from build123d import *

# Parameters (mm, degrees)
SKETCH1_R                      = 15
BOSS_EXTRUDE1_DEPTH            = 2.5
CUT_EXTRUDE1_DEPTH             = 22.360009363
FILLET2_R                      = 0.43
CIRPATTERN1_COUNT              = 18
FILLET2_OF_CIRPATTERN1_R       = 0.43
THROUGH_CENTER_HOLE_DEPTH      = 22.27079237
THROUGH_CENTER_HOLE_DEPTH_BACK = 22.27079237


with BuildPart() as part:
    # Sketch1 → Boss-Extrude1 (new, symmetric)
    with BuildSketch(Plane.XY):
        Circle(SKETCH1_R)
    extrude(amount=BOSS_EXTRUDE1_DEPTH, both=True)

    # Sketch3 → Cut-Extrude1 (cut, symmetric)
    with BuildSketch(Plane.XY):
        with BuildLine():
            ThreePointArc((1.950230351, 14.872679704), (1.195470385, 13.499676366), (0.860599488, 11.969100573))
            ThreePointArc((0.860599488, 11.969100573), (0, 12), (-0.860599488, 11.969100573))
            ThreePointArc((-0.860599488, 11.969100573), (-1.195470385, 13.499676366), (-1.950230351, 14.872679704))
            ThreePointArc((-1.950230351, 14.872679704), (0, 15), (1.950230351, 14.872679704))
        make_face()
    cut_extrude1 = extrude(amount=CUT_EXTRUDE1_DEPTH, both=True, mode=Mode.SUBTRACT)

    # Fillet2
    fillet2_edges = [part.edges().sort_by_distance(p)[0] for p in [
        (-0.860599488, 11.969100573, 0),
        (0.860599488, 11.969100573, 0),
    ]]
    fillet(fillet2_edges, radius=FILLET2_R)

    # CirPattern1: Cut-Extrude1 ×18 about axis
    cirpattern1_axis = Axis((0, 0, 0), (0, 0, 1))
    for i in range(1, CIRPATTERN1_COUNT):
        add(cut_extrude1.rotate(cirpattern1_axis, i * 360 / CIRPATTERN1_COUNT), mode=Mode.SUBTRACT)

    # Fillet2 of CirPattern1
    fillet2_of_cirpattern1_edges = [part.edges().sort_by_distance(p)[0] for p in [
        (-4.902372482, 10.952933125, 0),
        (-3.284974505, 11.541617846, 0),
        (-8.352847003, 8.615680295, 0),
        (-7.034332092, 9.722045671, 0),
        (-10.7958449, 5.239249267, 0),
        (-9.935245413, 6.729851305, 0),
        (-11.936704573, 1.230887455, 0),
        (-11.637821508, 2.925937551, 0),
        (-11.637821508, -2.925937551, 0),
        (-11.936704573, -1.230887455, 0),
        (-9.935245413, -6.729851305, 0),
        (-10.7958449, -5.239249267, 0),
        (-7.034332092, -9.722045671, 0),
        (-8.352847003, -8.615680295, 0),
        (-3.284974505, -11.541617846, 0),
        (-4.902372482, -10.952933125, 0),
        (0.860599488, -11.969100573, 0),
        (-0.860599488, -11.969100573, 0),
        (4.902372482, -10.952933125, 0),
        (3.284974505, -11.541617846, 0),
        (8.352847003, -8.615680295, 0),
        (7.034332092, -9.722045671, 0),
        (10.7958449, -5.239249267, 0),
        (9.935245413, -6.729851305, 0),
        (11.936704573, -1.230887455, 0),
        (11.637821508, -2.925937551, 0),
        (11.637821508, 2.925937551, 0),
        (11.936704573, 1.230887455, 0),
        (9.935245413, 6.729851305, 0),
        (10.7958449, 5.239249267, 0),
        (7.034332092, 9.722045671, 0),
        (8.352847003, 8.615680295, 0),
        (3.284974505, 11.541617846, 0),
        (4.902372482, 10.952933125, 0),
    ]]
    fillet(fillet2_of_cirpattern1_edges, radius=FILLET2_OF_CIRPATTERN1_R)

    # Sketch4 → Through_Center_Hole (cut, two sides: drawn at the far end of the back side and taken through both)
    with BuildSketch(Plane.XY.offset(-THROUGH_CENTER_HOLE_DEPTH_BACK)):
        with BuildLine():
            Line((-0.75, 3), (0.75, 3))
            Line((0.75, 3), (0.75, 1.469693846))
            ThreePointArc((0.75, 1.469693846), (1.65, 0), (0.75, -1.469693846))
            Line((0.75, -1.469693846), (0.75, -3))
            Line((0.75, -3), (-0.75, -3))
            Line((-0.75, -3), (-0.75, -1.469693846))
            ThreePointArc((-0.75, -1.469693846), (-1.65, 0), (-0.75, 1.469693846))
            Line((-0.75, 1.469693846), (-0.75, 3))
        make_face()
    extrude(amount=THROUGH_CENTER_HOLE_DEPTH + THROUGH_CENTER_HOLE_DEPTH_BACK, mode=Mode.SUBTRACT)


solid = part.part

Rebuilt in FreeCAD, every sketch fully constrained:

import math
import FreeCAD as App
import Part
import Sketcher

V = App.Vector


def edges_at(feature, points):
    """Names of the edges that pass closest to the given points."""
    edges = feature.Shape.Edges
    near = lambda p: min(range(len(edges)), key=lambda i: edges[i].distToShape(Part.Vertex(*p))[0])
    return sorted({f"Edge{near(p) + 1}" for p in points})

doc = App.newDocument("Part")
body = doc.addObject("PartDesign::Body", "Body")

# Sketch on XY plane
sketch1 = body.newObject("Sketcher::SketchObject", "Sketch")
sketch1.AttachmentSupport = (doc.getObject("XY_Plane"), [""])
sketch1.MapMode = "FlatFace"
sketch1.addGeometry(Part.Circle(V(0, 0, 0), V(0, 0, 1), 15), False)
sketch1.addConstraint([
    Sketcher.Constraint("Coincident", 0, 3, -1, 1),
    Sketcher.Constraint("Diameter", 0, 30.0),
])
pad1 = body.newObject("PartDesign::Pad", "Pad")
pad1.Profile = sketch1
pad1.Length = 5
pad1.Midplane = True

# Sketch on XY plane
sketch2 = body.newObject("Sketcher::SketchObject", "Sketch001")
sketch2.AttachmentSupport = (doc.getObject("XY_Plane"), [""])
sketch2.MapMode = "FlatFace"
sketch2.addGeometry([
    Part.ArcOfCircle(Part.Circle(V(6.320085, 11.576554, 0), V(0, 0, 1), 5.47358), math.radians(142.973214), math.radians(175.88741)),
    Part.ArcOfCircle(Part.Circle(V(0, 0, 0), V(0, 0, 1), 15), math.radians(82.52952), math.radians(97.47048)),
    Part.ArcOfCircle(Part.Circle(V(-6.320085, 11.576554, 0), V(0, 0, 1), 5.47358), math.radians(4.11259), math.radians(37.026786)),
    Part.ArcOfCircle(Part.Circle(V(0, 0, 0), V(0, 0, 1), 12), math.radians(85.88741), math.radians(94.11259)),
], False)
sketch2.addConstraint([
    Sketcher.Constraint("Coincident", 0, 1, 1, 1),
    Sketcher.Constraint("Coincident", 1, 2, 2, 2),
    Sketcher.Constraint("Coincident", 2, 1, 3, 2),
    Sketcher.Constraint("Coincident", 3, 1, 0, 2),
    Sketcher.Constraint("Coincident", 1, 3, -1, 1),
    Sketcher.Constraint("Coincident", 3, 3, -1, 1),
    Sketcher.Constraint("Equal", 0, 2),
    Sketcher.Constraint("Symmetric", 0, 3, 2, 3, -2),
    Sketcher.Constraint("Radius", 1, 15.0),
    Sketcher.Constraint("Radius", 3, 12.0),
    Sketcher.Constraint("Radius", 0, 5.47358),
    Sketcher.Constraint("DistanceX", 2, 1, -1, 1, 0.860599),
    Sketcher.Constraint("DistanceX", -1, 1, 0, 1, 1.95023),
])
pocket1 = body.newObject("PartDesign::Pocket", "Pocket")
pocket1.Profile = sketch2
pocket1.Length = 44.720019
pocket1.Midplane = True
doc.recompute()

fillet = body.newObject("PartDesign::Fillet", "Fillet")
fillet.Base = (pocket1, edges_at(pocket1, [(-0.861, 11.969, 0), (0.861, 11.969, 0)]))
fillet.Radius = 0.43
doc.recompute()

polarpattern = body.newObject("PartDesign::PolarPattern", "PolarPattern")
polarpattern.Originals = [pocket1]
polarpattern.Axis = (doc.getObject("Z_Axis"), [""])
polarpattern.Angle = 360
polarpattern.Occurrences = 18
body.Tip = polarpattern
doc.recompute()

fillet2 = body.newObject("PartDesign::Fillet", "Fillet001")
fillet2.Base = (polarpattern, edges_at(polarpattern, [
    (-4.902, 10.953, 0),
    (-3.285, 11.542, 0),
    (-8.353, 8.616, 0),
    (-7.034, 9.722, 0),
    (-10.796, 5.239, 0),
    (-9.935, 6.73, 0),
    (-11.937, 1.231, 0),
    (-11.638, 2.926, 0),
    (-11.638, -2.926, 0),
    (-11.937, -1.231, 0),
    (-9.935, -6.73, 0),
    (-10.796, -5.239, 0),
    (-7.034, -9.722, 0),
    (-8.353, -8.616, 0),
    (-3.285, -11.542, 0),
    (-4.902, -10.953, 0),
    (0.861, -11.969, 0),
    (-0.861, -11.969, 0),
    (4.902, -10.953, 0),
    (3.285, -11.542, 0),
    (8.353, -8.616, 0),
    (7.034, -9.722, 0),
    (10.796, -5.239, 0),
    (9.935, -6.73, 0),
    (11.937, -1.231, 0),
    (11.638, -2.926, 0),
    (11.638, 2.926, 0),
    (11.937, 1.231, 0),
    (9.935, 6.73, 0),
    (10.796, 5.239, 0),
    (7.034, 9.722, 0),
    (8.353, 8.616, 0),
    (3.285, 11.542, 0),
    (4.902, 10.953, 0),
]))
fillet2.Radius = 0.43

# Sketch on XY plane
sketch3 = body.newObject("Sketcher::SketchObject", "Sketch002")
sketch3.AttachmentSupport = (doc.getObject("XY_Plane"), [""])
sketch3.MapMode = "FlatFace"
sketch3.addGeometry([
    Part.LineSegment(V(0.75, 3, 0), V(-0.75, 3, 0)),  # 0
    Part.LineSegment(V(-0.75, 3, 0), V(-0.75, 1.469694, 0)),  # 1
    Part.ArcOfCircle(Part.Circle(V(0, 0, 0), V(0, 0, 1), 1.65), math.radians(117.035692), math.radians(242.964308)),  # 2
    Part.LineSegment(V(-0.75, -1.469694, 0), V(-0.75, -3, 0)),  # 3
    Part.LineSegment(V(-0.75, -3, 0), V(0.75, -3, 0)),  # 4
    Part.LineSegment(V(0.75, -3, 0), V(0.75, -1.469694, 0)),  # 5
    Part.ArcOfCircle(Part.Circle(V(0, 0, 0), V(0, 0, 1), 1.65), math.radians(-62.964308), math.radians(62.964308)),  # 6
    Part.LineSegment(V(0.75, 1.469694, 0), V(0.75, 3, 0)),  # 7
], False)
sketch3.addConstraint([
    Sketcher.Constraint("Coincident", 0, 2, 1, 1),
    Sketcher.Constraint("Coincident", 1, 2, 2, 1),
    Sketcher.Constraint("Coincident", 2, 2, 3, 1),
    Sketcher.Constraint("Coincident", 3, 2, 4, 1),
    Sketcher.Constraint("Coincident", 4, 2, 5, 1),
    Sketcher.Constraint("Coincident", 5, 2, 6, 1),
    Sketcher.Constraint("Coincident", 6, 2, 7, 1),
    Sketcher.Constraint("Coincident", 7, 2, 0, 1),
    Sketcher.Constraint("Horizontal", 0),
    Sketcher.Constraint("Vertical", 1),
    Sketcher.Constraint("Vertical", 3),
    Sketcher.Constraint("Horizontal", 4),
    Sketcher.Constraint("Vertical", 5),
    Sketcher.Constraint("Vertical", 7),
    Sketcher.Constraint("Coincident", 2, 3, -1, 1),
    Sketcher.Constraint("Coincident", 6, 3, -1, 1),
    Sketcher.Constraint("Equal", 2, 6),
    Sketcher.Constraint("Symmetric", 0, 2, 4, 2, -1, 1),
    Sketcher.Constraint("Horizontal", 2, 2, 5, 2),
    Sketcher.Constraint("Horizontal", 1, 2, 6, 2),
    Sketcher.Constraint("Radius", 2, 1.65),
    Sketcher.Constraint("DistanceX", 0, 2, 0, 1, 1.5),
    Sketcher.Constraint("DistanceY", -1, 1, 0, 2, 3.0),
])
pocket2 = body.newObject("PartDesign::Pocket", "Pocket001")
pocket2.Profile = sketch3
pocket2.Type = "ThroughAll"
pocket2.Midplane = True

doc.recompute()
